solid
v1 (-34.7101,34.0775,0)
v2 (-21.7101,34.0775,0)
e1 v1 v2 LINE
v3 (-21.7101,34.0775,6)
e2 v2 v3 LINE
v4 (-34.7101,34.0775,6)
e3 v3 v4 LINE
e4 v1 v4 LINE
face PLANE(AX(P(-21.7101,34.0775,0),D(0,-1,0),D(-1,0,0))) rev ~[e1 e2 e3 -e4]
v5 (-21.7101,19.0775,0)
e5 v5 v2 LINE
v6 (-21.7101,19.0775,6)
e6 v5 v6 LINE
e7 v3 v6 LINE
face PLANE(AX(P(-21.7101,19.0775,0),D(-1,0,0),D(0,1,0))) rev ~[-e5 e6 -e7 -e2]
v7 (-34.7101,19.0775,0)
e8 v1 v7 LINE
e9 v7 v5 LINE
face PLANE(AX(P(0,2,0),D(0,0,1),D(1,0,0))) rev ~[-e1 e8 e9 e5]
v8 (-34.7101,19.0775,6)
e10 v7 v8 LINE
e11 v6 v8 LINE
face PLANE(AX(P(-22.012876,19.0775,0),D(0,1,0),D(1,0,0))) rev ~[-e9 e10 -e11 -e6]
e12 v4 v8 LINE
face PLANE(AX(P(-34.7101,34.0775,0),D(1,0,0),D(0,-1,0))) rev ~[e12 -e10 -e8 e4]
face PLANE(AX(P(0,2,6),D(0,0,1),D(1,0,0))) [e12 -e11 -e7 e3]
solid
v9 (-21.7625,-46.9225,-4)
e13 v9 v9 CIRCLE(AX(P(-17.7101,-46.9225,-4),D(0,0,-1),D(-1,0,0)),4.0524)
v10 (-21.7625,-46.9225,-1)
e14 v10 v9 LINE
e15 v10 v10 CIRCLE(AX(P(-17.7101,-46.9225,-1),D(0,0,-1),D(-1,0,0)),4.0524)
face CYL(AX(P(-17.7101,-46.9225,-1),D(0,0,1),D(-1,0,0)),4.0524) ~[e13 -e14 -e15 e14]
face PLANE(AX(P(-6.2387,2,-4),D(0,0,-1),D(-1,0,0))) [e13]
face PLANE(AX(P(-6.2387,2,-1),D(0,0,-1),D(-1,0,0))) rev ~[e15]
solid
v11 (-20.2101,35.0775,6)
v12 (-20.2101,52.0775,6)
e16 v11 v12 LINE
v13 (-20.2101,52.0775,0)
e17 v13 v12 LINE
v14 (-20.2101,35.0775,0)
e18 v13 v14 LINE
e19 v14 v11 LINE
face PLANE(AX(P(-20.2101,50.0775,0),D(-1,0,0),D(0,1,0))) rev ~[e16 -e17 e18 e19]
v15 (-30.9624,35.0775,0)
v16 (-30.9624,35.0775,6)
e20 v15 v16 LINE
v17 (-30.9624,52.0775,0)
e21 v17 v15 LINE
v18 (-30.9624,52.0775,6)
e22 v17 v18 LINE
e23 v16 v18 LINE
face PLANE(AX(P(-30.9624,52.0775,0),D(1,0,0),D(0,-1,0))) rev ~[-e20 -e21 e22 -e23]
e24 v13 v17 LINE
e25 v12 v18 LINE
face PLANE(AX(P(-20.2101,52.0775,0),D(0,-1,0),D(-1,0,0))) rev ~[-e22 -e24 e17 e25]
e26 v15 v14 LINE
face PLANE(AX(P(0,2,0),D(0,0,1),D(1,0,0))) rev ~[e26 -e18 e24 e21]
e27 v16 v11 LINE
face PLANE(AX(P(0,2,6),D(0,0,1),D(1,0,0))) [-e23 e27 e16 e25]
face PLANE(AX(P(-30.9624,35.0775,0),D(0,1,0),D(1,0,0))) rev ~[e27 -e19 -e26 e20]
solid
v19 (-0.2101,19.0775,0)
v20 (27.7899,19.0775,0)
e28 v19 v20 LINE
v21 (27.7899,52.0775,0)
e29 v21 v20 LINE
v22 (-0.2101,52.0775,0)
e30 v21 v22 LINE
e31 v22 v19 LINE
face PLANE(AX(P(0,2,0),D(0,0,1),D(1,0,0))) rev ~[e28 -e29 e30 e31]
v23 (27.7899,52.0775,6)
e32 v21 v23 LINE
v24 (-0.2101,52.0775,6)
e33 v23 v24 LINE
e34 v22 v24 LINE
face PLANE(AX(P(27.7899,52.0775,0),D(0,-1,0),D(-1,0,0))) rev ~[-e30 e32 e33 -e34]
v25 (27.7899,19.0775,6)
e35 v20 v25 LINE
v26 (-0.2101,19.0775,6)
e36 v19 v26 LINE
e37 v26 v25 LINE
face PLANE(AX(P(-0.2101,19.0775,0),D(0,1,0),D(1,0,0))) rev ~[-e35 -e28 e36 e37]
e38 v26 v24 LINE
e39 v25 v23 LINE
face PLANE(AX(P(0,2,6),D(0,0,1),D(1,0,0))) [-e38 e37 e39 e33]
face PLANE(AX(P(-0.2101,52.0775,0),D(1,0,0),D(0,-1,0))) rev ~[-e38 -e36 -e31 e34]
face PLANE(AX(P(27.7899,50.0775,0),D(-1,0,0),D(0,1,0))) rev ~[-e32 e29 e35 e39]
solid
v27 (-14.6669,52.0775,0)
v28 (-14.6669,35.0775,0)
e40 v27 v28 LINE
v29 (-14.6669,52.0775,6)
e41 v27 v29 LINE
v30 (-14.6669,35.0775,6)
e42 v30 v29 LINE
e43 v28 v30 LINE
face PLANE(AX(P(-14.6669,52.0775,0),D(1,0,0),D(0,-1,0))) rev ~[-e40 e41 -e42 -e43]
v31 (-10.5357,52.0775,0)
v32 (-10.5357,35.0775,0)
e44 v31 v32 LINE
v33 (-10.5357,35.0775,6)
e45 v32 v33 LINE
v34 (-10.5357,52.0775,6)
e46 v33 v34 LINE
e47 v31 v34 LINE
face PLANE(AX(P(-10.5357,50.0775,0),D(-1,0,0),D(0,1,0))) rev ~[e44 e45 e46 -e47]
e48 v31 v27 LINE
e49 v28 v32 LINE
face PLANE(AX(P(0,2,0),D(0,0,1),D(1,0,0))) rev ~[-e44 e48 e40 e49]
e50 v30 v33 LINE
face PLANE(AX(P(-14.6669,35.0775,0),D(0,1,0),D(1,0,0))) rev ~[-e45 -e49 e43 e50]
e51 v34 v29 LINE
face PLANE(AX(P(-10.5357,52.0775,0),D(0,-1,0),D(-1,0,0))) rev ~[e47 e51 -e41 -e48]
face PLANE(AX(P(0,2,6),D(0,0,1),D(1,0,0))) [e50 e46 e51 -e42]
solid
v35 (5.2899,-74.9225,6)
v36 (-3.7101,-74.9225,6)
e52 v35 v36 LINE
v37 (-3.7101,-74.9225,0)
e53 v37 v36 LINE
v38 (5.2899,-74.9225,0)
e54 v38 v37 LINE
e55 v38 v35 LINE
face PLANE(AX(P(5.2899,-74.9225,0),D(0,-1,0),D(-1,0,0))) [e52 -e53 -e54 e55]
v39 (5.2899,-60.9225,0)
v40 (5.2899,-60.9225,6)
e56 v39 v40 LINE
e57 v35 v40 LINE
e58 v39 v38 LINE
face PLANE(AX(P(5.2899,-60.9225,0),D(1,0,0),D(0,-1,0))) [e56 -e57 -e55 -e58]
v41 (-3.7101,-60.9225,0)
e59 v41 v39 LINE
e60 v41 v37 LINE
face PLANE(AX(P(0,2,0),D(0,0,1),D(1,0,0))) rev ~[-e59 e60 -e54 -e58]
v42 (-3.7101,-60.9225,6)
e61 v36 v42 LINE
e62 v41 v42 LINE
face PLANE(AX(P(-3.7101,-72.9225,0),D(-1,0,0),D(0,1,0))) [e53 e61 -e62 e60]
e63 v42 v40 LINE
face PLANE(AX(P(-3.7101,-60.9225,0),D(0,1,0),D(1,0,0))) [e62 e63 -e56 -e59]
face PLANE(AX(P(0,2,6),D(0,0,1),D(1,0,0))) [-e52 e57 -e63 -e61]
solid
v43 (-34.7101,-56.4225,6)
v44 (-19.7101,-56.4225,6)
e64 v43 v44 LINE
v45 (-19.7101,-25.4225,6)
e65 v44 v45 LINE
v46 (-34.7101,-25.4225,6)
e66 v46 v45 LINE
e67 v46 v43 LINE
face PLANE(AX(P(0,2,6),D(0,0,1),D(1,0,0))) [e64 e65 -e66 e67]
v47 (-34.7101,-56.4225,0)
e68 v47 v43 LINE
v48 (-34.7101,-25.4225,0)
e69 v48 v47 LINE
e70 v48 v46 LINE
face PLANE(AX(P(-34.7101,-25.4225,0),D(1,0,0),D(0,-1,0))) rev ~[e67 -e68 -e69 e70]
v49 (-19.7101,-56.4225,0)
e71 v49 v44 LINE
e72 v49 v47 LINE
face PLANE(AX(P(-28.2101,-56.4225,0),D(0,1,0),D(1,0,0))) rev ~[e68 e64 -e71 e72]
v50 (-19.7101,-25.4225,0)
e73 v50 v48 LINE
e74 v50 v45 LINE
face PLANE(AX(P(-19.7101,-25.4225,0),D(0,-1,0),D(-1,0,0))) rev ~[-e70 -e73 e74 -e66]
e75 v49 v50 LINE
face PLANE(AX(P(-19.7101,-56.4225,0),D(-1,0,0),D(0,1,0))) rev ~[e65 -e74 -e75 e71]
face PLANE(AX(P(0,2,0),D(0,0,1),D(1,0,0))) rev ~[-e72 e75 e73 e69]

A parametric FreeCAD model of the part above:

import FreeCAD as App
import Part
import Sketcher

doc = App.newDocument("Part")
body = doc.addObject("PartDesign::Body", "Body")
body.AllowCompound = True

sketch1 = body.newObject("Sketcher::SketchObject", "Sketch")
sketch1.AttachmentSupport = (doc.getObject("XY_Plane"), [""])
sketch1.MapMode = "FlatFace"
sketch1.addGeometry([
    Part.LineSegment(App.Vector(-21.7, 19.1, 0), App.Vector(-21.7, 34.1, 0)),
    Part.LineSegment(App.Vector(-21.7, 34.1, 0), App.Vector(-34.7, 34.1, 0)),
    Part.LineSegment(App.Vector(-34.7, 34.1, 0), App.Vector(-34.7, 19.1, 0)),
    Part.LineSegment(App.Vector(-34.7, 19.1, 0), App.Vector(-21.7, 19.1, 0)),
    Part.LineSegment(App.Vector(-19.7, -25.4, 0), App.Vector(-34.7, -25.4, 0)),
    Part.LineSegment(App.Vector(-34.7, -25.4, 0), App.Vector(-34.7, -56.4, 0)),
    Part.LineSegment(App.Vector(-34.7, -56.4, 0), App.Vector(-19.7, -56.4, 0)),
    Part.LineSegment(App.Vector(-19.7, -56.4, 0), App.Vector(-19.7, -25.4, 0)),
    Part.LineSegment(App.Vector(-31, 52.1, 0), App.Vector(-31, 35.1, 0)),
    Part.LineSegment(App.Vector(-31, 35.1, 0), App.Vector(-20.2, 35.1, 0)),
    Part.LineSegment(App.Vector(-20.2, 35.1, 0), App.Vector(-20.2, 52.1, 0)),
    Part.LineSegment(App.Vector(-20.2, 52.1, 0), App.Vector(-31, 52.1, 0)),
    Part.LineSegment(App.Vector(-14.7, 52.1, 0), App.Vector(-14.7, 35.1, 0)),
    Part.LineSegment(App.Vector(-14.7, 35.1, 0), App.Vector(-10.5, 35.1, 0)),
    Part.LineSegment(App.Vector(-10.5, 35.1, 0), App.Vector(-10.5, 52.1, 0)),
    Part.LineSegment(App.Vector(-10.5, 52.1, 0), App.Vector(-14.7, 52.1, 0)),
    Part.LineSegment(App.Vector(-3.7, -60.9, 0), App.Vector(-3.7, -74.9, 0)),
    Part.LineSegment(App.Vector(-3.7, -74.9, 0), App.Vector(5.3, -74.9, 0)),
    Part.LineSegment(App.Vector(5.3, -74.9, 0), App.Vector(5.3, -60.9, 0)),
    Part.LineSegment(App.Vector(5.3, -60.9, 0), App.Vector(-3.7, -60.9, 0)),
    Part.LineSegment(App.Vector(-0.2, 52.1, 0), App.Vector(-0.2, 19.1, 0)),
    Part.LineSegment(App.Vector(-0.2, 19.1, 0), App.Vector(27.8, 19.1, 0)),
    Part.LineSegment(App.Vector(27.8, 19.1, 0), App.Vector(27.8, 52.1, 0)),
    Part.LineSegment(App.Vector(27.8, 52.1, 0), App.Vector(-0.2, 52.1, 0)),
], False)
sketch1.addConstraint([
    Sketcher.Constraint("Coincident", 0, 2, 1, 1),
    Sketcher.Constraint("Coincident", 1, 2, 2, 1),
    Sketcher.Constraint("Coincident", 2, 2, 3, 1),
    Sketcher.Constraint("Coincident", 3, 2, 0, 1),
    Sketcher.Constraint("Coincident", 4, 2, 5, 1),
    Sketcher.Constraint("Coincident", 5, 2, 6, 1),
    Sketcher.Constraint("Coincident", 6, 2, 7, 1),
    Sketcher.Constraint("Coincident", 7, 2, 4, 1),
    Sketcher.Constraint("Coincident", 8, 2, 9, 1),
    Sketcher.Constraint("Coincident", 9, 2, 10, 1),
    Sketcher.Constraint("Coincident", 10, 2, 11, 1),
    Sketcher.Constraint("Coincident", 11, 2, 8, 1),
    Sketcher.Constraint("Coincident", 12, 2, 13, 1),
    Sketcher.Constraint("Coincident", 13, 2, 14, 1),
    Sketcher.Constraint("Coincident", 14, 2, 15, 1),
    Sketcher.Constraint("Coincident", 15, 2, 12, 1),
    Sketcher.Constraint("Coincident", 16, 2, 17, 1),
    Sketcher.Constraint("Coincident", 17, 2, 18, 1),
    Sketcher.Constraint("Coincident", 18, 2, 19, 1),
    Sketcher.Constraint("Coincident", 19, 2, 16, 1),
    Sketcher.Constraint("Coincident", 20, 2, 21, 1),
    Sketcher.Constraint("Coincident", 21, 2, 22, 1),
    Sketcher.Constraint("Coincident", 22, 2, 23, 1),
    Sketcher.Constraint("Coincident", 23, 2, 20, 1),
    Sketcher.Constraint("Vertical", 0),
    Sketcher.Constraint("Horizontal", 1),
    Sketcher.Constraint("Vertical", 2),
    Sketcher.Constraint("Horizontal", 3),
    Sketcher.Constraint("Horizontal", 4),
    Sketcher.Constraint("Vertical", 5),
    Sketcher.Constraint("Horizontal", 6),
    Sketcher.Constraint("Vertical", 7),
    Sketcher.Constraint("Vertical", 8),
    Sketcher.Constraint("Horizontal", 9),
    Sketcher.Constraint("Vertical", 10),
    Sketcher.Constraint("Horizontal", 11),
    Sketcher.Constraint("Vertical", 12),
    Sketcher.Constraint("Horizontal", 13),
    Sketcher.Constraint("Vertical", 14),
    Sketcher.Constraint("Horizontal", 15),
    Sketcher.Constraint("Vertical", 16),
    Sketcher.Constraint("Horizontal", 17),
    Sketcher.Constraint("Vertical", 18),
    Sketcher.Constraint("Horizontal", 19),
    Sketcher.Constraint("Vertical", 20),
    Sketcher.Constraint("Horizontal", 21),
    Sketcher.Constraint("Vertical", 22),
    Sketcher.Constraint("Horizontal", 23),
    Sketcher.Constraint("Horizontal", 9, 2, 12, 2),
    Sketcher.Constraint("Horizontal", 11, 2, 14, 2),
    Sketcher.Constraint("Horizontal", 3, 2, 20, 2),
    Sketcher.Constraint("Horizontal", 15, 2, 22, 2),
    Sketcher.Constraint("Vertical", 2, 2, 4, 2),
    Sketcher.Constraint("Equal", 6, 0),
    Sketcher.Constraint("DistanceX", 1, 2, 1, 1, 13.0),
    Sketcher.Constraint("DistanceX", 4, 2, 4, 1, 15.0),
    Sketcher.Constraint("DistanceX", 17, 1, 17, 2, 9.0),
    Sketcher.Constraint("DistanceY", 5, 2, 5, 1, 31.0),
    Sketcher.Constraint("DistanceY", 16, 2, 16, 1, 14.0),
    Sketcher.Constraint("DistanceY", 1, 2, 8, 2, 1.0),
    Sketcher.Constraint("DistanceX", 6, 2, 16, 2, 16.0),
    Sketcher.Constraint("DistanceX", 21, 1, 21, 2, 28.0),
    Sketcher.Constraint("DistanceY", 8, 2, 8, 1, 17.0),
    Sketcher.Constraint("DistanceY", 16, 2, 3, 2, 94.0),
    Sketcher.Constraint("DistanceX", 9, 2, 20, 2, 20.0),
    Sketcher.Constraint("DistanceY", 4, 2, 2, 2, 44.5),
    Sketcher.Constraint("DistanceX", 0, 2, 9, 2, 1.5),
    Sketcher.Constraint("DistanceX", 0, 2, -1, 1, 21.71),
    Sketcher.Constraint("DistanceX", 9, 1, 9, 2, 10.7523),
    Sketcher.Constraint("DistanceX", 13, 1, 13, 2, 4.1312),
    Sketcher.Constraint("DistanceX", 12, 2, -1, 1, 14.667),
    Sketcher.Constraint("DistanceY", -1, 1, 0, 2, 34.0775),
])
pad1 = body.newObject("PartDesign::Pad", "Pad")
pad1.Profile = sketch1
pad1.Length = 6

sketch2 = body.newObject("Sketcher::SketchObject", "Sketch001")
sketch2.AttachmentSupport = (doc.getObject("XY_Plane"), [""])
sketch2.MapMode = "FlatFace"
sketch2.AttachmentOffset = App.Placement(App.Vector(0, 0, -1), App.Rotation())
sketch2.addGeometry(Part.Circle(App.Vector(-17.7, -46.9, 0), App.Vector(0, 0, 1), 4.1), False)
sketch2.addConstraint([
    Sketcher.Constraint("Diameter", 0, 8.1048),
    Sketcher.Constraint("DistanceX", 0, 3, -1, 1, 17.71),
    Sketcher.Constraint("DistanceY", 0, 3, -1, 1, 46.9225),
])
pad2 = body.newObject("PartDesign::Pad", "Pad001")
pad2.Profile = sketch2
pad2.Length = 3
pad2.Reversed = True

doc.recompute()
